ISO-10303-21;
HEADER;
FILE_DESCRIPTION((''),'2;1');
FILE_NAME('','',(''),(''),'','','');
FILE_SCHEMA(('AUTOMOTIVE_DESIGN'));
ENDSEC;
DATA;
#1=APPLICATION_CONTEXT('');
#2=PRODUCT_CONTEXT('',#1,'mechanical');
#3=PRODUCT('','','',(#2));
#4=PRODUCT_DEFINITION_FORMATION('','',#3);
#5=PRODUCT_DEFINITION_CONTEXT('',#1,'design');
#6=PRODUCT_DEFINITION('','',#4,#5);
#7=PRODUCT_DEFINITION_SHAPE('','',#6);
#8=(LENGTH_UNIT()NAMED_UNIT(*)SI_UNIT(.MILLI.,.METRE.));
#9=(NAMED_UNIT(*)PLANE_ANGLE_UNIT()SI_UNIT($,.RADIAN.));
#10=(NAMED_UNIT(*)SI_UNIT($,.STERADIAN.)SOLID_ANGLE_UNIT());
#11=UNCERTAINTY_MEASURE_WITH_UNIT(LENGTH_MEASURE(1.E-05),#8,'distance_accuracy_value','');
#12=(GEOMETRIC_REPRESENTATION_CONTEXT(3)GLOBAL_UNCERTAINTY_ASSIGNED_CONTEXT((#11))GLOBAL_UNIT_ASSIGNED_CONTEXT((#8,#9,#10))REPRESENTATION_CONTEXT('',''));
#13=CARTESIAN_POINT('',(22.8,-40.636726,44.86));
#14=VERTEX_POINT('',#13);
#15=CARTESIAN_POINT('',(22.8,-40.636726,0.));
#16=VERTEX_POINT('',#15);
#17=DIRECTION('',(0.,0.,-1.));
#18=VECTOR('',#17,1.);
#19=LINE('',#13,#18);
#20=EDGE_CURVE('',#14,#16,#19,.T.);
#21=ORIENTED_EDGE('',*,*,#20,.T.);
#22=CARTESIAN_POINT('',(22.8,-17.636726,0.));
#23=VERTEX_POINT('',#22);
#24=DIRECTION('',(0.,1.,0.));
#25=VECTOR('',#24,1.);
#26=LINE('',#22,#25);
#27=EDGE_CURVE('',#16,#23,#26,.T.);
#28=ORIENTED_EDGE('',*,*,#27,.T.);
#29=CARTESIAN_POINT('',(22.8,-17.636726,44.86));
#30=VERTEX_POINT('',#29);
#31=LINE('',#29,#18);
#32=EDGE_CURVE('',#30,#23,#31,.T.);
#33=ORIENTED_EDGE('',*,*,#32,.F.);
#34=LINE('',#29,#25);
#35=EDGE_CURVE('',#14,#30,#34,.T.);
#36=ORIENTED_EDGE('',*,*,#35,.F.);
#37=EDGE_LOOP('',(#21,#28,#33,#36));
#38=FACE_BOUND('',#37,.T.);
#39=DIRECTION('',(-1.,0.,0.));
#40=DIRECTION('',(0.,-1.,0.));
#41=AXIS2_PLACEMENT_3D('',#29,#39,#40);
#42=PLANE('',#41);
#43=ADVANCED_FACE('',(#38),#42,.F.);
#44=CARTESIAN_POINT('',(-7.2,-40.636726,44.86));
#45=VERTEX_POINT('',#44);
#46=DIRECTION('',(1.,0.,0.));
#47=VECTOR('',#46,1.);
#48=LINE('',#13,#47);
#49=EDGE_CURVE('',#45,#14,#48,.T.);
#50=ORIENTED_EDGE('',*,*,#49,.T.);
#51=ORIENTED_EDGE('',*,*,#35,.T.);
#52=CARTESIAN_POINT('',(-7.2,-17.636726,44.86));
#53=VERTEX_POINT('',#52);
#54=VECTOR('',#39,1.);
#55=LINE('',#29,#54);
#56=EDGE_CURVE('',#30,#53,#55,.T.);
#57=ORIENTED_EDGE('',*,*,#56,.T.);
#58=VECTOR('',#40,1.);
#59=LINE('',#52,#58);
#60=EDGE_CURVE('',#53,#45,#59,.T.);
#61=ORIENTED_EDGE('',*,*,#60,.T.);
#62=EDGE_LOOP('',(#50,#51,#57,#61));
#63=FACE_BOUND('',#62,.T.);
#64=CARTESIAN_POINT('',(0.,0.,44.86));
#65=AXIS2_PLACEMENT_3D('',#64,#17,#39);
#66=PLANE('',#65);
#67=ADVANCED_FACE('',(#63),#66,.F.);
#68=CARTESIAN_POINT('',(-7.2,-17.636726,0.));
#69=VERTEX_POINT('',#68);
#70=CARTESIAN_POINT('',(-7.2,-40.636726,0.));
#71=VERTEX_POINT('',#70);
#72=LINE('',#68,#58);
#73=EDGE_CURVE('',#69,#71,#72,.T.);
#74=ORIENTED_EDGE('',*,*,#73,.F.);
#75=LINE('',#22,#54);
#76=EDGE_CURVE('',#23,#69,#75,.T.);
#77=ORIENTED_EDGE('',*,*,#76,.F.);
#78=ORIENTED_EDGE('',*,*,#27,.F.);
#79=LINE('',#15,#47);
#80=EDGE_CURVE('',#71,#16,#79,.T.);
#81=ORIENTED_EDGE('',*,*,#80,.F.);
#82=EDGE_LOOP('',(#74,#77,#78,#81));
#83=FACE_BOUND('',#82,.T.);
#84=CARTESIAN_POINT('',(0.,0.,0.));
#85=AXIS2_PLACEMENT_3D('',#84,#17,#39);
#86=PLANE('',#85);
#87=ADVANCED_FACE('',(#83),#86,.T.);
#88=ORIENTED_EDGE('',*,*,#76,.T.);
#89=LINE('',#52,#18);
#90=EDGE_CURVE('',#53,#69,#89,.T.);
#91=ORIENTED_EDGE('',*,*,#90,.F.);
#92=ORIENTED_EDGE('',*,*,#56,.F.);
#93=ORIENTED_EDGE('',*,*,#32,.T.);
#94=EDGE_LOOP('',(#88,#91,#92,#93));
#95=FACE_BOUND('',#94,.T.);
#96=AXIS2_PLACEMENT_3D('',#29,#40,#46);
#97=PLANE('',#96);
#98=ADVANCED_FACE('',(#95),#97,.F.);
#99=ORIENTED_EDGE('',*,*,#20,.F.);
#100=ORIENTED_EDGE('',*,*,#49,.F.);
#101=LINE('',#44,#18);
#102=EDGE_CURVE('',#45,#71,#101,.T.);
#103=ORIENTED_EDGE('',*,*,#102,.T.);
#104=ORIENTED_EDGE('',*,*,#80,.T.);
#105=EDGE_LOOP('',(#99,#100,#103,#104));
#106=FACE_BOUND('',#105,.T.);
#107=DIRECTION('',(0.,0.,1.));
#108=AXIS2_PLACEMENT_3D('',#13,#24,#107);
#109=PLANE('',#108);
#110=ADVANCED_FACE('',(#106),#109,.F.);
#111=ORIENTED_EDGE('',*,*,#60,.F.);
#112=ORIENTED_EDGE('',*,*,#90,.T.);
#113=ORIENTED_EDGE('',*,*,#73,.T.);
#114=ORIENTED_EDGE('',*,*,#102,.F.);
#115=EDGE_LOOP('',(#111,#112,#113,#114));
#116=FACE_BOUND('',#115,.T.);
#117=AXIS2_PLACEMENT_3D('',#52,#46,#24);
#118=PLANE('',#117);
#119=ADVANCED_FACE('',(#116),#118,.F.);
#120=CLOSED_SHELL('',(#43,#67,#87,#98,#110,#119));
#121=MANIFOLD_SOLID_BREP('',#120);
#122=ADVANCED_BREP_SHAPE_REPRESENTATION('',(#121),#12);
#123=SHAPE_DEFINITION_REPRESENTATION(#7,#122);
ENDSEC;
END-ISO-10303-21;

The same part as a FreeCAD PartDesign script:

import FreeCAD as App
import Part
import Sketcher


def add_polygon(sketch, points):
    """Adds a closed chain of lines whose ends are joined by coincident constraints."""
    first, n = sketch.GeometryCount, len(points)
    for a, b in zip(points, points[1:] + points[:1]):
        sketch.addGeometry(Part.LineSegment(App.Vector(*a, 0), App.Vector(*b, 0)), False)
    for i in range(n):
        sketch.addConstraint(Sketcher.Constraint("Coincident", first + i, 2, first + (i + 1) % n, 1))

doc = App.newDocument("Part")
body = doc.addObject("PartDesign::Body", "Body")

sketch1 = body.newObject("Sketcher::SketchObject", "Sketch")
sketch1.AttachmentSupport = (doc.getObject("XY_Plane"), [""])
sketch1.MapMode = "FlatFace"
add_polygon(sketch1, [(-7.2, -17.636726), (-7.2, -40.636726), (22.8, -40.636726), (22.8, -17.636726)])
sketch1.addConstraint(Sketcher.Constraint("Vertical", 0))
sketch1.addConstraint(Sketcher.Constraint("Horizontal", 1))
sketch1.addConstraint(Sketcher.Constraint("Vertical", 2))
sketch1.addConstraint(Sketcher.Constraint("Horizontal", 3))
sketch1.addConstraint(Sketcher.Constraint("DistanceX", 1, 1, 1, 2, 30.0))
sketch1.addConstraint(Sketcher.Constraint("DistanceY", 0, 2, 0, 1, 23.0))
sketch1.addConstraint(Sketcher.Constraint("DistanceX", 0, 2, -1, 1, 7.2))
sketch1.addConstraint(Sketcher.Constraint("DistanceY", 0, 2, -1, 1, 40.636726))
pad1 = body.newObject("PartDesign::Pad", "Pad")
pad1.Profile = sketch1
pad1.Length = 44.86

doc.recompute()
